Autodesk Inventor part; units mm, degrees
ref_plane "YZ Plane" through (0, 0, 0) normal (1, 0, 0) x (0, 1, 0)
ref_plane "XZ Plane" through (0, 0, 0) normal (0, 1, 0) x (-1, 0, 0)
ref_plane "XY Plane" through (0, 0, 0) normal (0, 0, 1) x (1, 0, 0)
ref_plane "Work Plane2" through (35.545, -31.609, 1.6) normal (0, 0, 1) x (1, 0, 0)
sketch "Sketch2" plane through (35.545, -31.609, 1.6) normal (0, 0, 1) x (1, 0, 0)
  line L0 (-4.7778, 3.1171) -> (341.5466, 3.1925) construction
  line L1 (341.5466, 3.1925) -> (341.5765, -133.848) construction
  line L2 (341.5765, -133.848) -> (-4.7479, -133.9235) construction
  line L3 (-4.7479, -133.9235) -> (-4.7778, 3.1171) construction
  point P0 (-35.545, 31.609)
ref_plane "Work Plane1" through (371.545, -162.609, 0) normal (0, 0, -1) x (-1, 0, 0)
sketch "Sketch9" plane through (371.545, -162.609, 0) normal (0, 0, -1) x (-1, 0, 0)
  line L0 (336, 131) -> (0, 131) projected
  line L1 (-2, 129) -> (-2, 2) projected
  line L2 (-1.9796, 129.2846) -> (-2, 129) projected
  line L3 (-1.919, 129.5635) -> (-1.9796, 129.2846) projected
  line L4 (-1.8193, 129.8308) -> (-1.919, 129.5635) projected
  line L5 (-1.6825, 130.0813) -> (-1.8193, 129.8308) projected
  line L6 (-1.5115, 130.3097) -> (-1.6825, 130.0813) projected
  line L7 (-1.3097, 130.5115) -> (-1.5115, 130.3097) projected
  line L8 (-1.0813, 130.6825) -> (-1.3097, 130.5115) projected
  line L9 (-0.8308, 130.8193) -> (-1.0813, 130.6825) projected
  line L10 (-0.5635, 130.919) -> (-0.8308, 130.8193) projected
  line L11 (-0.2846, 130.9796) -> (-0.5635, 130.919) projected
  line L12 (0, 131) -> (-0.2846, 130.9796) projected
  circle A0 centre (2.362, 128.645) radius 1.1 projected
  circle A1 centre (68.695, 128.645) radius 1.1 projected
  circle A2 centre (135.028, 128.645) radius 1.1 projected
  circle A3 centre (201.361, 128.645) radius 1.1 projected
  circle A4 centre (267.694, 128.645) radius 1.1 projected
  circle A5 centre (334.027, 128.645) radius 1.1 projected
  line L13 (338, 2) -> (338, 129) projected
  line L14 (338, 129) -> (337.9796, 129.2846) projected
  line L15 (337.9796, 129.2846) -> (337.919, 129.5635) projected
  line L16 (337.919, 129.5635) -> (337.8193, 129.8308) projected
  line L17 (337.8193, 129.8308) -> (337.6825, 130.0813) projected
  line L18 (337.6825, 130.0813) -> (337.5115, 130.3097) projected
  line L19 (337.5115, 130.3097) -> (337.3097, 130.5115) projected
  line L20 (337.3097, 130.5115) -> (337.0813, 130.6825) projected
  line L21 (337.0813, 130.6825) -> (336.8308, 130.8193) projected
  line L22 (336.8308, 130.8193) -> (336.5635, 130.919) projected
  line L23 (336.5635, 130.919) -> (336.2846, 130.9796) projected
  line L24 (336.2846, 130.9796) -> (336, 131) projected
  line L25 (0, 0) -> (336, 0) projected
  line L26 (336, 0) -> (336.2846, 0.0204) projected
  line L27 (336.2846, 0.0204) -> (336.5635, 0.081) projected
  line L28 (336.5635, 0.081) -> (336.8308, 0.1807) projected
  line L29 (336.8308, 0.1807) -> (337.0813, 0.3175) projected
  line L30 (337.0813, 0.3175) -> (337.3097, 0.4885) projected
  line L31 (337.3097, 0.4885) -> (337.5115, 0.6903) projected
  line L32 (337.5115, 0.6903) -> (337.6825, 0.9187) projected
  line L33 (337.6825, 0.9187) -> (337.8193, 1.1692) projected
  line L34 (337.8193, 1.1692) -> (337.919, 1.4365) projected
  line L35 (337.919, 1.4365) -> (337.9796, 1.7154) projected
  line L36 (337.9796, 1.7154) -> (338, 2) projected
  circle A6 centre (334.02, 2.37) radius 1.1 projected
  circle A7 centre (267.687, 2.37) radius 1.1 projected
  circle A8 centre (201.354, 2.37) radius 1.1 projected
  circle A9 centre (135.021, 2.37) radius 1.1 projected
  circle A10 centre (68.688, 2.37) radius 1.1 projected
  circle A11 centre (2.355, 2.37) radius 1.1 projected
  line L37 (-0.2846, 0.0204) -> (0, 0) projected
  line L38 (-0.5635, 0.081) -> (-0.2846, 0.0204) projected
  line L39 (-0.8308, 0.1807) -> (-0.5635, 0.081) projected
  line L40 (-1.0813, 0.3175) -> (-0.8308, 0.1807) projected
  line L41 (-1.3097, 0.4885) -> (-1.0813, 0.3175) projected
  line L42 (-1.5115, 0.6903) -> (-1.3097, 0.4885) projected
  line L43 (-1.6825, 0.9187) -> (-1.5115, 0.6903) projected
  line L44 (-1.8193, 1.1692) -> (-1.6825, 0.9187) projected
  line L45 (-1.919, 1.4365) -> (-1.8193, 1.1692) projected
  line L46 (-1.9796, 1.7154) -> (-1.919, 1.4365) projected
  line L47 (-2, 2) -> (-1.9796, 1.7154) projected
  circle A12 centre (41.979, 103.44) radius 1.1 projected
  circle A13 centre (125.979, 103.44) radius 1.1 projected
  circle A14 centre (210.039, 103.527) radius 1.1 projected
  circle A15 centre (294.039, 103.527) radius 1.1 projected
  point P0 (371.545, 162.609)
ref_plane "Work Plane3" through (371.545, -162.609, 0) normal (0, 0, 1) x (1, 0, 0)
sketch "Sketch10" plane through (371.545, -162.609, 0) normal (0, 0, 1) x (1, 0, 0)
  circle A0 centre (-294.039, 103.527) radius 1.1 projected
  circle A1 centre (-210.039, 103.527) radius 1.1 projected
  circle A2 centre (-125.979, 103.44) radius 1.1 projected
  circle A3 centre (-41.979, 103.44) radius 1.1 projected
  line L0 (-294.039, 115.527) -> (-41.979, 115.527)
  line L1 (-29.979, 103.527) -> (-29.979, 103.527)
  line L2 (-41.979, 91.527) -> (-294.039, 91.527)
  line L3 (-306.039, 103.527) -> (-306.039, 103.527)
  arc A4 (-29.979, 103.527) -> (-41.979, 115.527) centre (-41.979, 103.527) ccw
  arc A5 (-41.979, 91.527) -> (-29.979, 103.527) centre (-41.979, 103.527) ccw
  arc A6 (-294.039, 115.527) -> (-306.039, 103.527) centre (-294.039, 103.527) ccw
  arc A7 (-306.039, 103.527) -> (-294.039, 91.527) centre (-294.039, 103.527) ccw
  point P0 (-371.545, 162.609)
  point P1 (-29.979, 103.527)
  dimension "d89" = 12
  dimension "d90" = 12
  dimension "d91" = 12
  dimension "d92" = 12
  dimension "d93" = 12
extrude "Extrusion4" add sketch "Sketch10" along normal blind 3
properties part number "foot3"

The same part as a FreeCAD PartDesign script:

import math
import FreeCAD as App
import Part
import Sketcher

doc = App.newDocument("Part")
body = doc.addObject("PartDesign::Body", "Body")

# Sketch on XY plane
sketch1 = doc.addObject("Sketcher::SketchObject", "Sketch")
body.addObject(sketch1)
sketch1.AttachmentSupport = (doc.XY_Plane, [""])
sketch1.MapMode = "FlatFace"
sketch1.addGeometry([
    Part.LineSegment(App.Vector(329.6, -47.1, 0), App.Vector(77.5, -47.1, 0)),  # 0
    Part.ArcOfCircle(Part.Circle(App.Vector(77.5, -59.1, 0), App.Vector(0, 0, 1), 12), math.radians(90), math.radians(270)),  # 1
    Part.LineSegment(App.Vector(77.5, -71.1, 0), App.Vector(329.6, -71.1, 0)),  # 2
    Part.ArcOfCircle(Part.Circle(App.Vector(329.6, -59.1, 0), App.Vector(0, 0, 1), 12), math.radians(-90), math.radians(90)),  # 3
    Part.Circle(App.Vector(245.6, -59.2, 0), App.Vector(0, 0, 1), 1.1),  # 4
    Part.Circle(App.Vector(329.6, -59.2, 0), App.Vector(0, 0, 1), 1.1),  # 5
    Part.Circle(App.Vector(77.5, -59.1, 0), App.Vector(0, 0, 1), 1.1),  # 6
    Part.Circle(App.Vector(161.5, -59.1, 0), App.Vector(0, 0, 1), 1.1),  # 7
], False)
sketch1.addConstraint([
    Sketcher.Constraint("Tangent", 0, 2, 1, 1),
    Sketcher.Constraint("Tangent", 1, 2, 2, 1),
    Sketcher.Constraint("Tangent", 2, 2, 3, 1),
    Sketcher.Constraint("Tangent", 3, 2, 0, 1),
    Sketcher.Constraint("Horizontal", 0),
    Sketcher.Constraint("Horizontal", 2),
    Sketcher.Constraint("Coincident", 6, 3, 1, 3),
    Sketcher.Constraint("Equal", 4, 5),
    Sketcher.Constraint("Equal", 5, 6),
    Sketcher.Constraint("Equal", 6, 7),
    Sketcher.Constraint("Horizontal", 4, 3, 5, 3),
    Sketcher.Constraint("Horizontal", 6, 3, 7, 3),
    Sketcher.Constraint("Vertical", 3, 3, 5, 3),
    Sketcher.Constraint("Radius", 1, 12.0),
    Sketcher.Constraint("Diameter", 4, 2.2),
    Sketcher.Constraint("DistanceX", 4, 3, 3, 3, 84.0),
    Sketcher.Constraint("DistanceX", 1, 3, 7, 3, 84.0),
    Sketcher.Constraint("DistanceX", 0, 2, 0, 1, 252.06),
    Sketcher.Constraint("DistanceX", -1, 1, 1, 3, 77.506),
    Sketcher.Constraint("DistanceY", 1, 3, -1, 1, 59.082),
    Sketcher.Constraint("DistanceY", 4, 3, -1, 1, 59.169),
])
pad1 = doc.addObject("PartDesign::Pad", "Pad")
body.addObject(pad1)
pad1.Profile = sketch1
pad1.Length = 3

doc.recompute()
